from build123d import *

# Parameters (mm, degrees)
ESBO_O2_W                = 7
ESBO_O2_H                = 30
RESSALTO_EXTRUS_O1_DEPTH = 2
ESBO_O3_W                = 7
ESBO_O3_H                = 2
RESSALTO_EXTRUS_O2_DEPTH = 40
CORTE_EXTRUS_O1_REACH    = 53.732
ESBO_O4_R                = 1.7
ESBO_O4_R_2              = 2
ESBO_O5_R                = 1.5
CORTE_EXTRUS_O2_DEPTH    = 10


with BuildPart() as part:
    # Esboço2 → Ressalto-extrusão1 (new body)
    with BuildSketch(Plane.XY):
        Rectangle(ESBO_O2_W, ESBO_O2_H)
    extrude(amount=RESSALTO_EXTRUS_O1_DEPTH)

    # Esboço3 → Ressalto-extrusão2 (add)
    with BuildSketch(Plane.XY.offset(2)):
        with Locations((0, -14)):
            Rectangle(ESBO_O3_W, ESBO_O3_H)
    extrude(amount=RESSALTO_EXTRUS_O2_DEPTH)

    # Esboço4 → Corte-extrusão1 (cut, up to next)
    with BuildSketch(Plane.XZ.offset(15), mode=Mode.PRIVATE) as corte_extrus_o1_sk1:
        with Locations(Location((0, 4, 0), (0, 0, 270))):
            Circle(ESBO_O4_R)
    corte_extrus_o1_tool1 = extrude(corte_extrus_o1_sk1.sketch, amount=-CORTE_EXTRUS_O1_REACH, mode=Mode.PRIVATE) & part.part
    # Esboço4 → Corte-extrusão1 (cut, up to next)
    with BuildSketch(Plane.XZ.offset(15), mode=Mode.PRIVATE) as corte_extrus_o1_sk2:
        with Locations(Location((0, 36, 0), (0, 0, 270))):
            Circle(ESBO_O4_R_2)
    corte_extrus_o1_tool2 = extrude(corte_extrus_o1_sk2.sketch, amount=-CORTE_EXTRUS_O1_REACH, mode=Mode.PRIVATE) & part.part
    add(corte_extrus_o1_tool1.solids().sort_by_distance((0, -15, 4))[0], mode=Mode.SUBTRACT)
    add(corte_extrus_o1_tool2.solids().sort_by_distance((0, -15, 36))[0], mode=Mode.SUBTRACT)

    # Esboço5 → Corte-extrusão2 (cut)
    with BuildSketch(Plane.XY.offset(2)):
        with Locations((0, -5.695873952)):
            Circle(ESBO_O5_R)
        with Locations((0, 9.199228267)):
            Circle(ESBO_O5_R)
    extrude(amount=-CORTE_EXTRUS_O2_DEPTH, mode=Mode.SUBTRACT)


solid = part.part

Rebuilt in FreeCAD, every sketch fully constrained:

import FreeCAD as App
import Part
import Sketcher

V = App.Vector
Q = App.Units.Quantity

doc = App.newDocument("Part")
params = doc.addObject("Spreadsheet::Sheet", "Params")
for row, (alias, value) in enumerate([
    ("sketch1_width", "7 mm"),
    ("sketch1_height", "30 mm"),
    ("pad1_length", "2 mm"),
    ("sketch2_width", "7 mm"),
    ("sketch2_height", "2 mm"),
    ("pad2_length", "40 mm"),
    ("sketch3_diameter", "3.4 mm"),
    ("sketch4_diameter", "4 mm"),
    ("sketch5_diameter", "3 mm"),
    ("pocket3_length", "10 mm"),
], start=1):
    params.set(f"A{row}", alias)
    params.set(f"B{row}", "=" + value)
    params.setAlias(f"B{row}", alias)

body = doc.addObject("PartDesign::Body", "Body")

sketch1 = body.newObject("Sketcher::SketchObject", "Sketch")
sketch1.AttachmentSupport = (doc.getObject("XY_Plane"), [""])
sketch1.MapMode = "FlatFace"
sketch1.addGeometry(Part.LineSegment(V(-3.5, 15, 0), V(-3.5, -15, 0)), False)
sketch1.addGeometry(Part.LineSegment(V(-3.5, -15, 0), V(3.5, -15, 0)), False)
sketch1.addGeometry(Part.LineSegment(V(3.5, -15, 0), V(3.5, 15, 0)), False)
sketch1.addGeometry(Part.LineSegment(V(3.5, 15, 0), V(-3.5, 15, 0)), False)
sketch1.addConstraint(Sketcher.Constraint("Coincident", 0, 2, 1, 1))
sketch1.addConstraint(Sketcher.Constraint("Coincident", 1, 2, 2, 1))
sketch1.addConstraint(Sketcher.Constraint("Coincident", 2, 2, 3, 1))
sketch1.addConstraint(Sketcher.Constraint("Coincident", 3, 2, 0, 1))
sketch1.addConstraint(Sketcher.Constraint("Vertical", 0))
sketch1.addConstraint(Sketcher.Constraint("Horizontal", 1))
sketch1.addConstraint(Sketcher.Constraint("Vertical", 2))
sketch1.addConstraint(Sketcher.Constraint("Horizontal", 3))
sketch1.addConstraint(Sketcher.Constraint("Symmetric", 0, 2, 2, 2, -1, 1))
sketch1.addConstraint(Sketcher.Constraint("DistanceX", 1, 1, 1, 2, Q("7 mm")))
sketch1.addConstraint(Sketcher.Constraint("DistanceY", 0, 2, 0, 1, Q("30 mm")))
sketch1.setExpression("Constraints[9]", "Params.sketch1_width")
sketch1.setExpression("Constraints[10]", "Params.sketch1_height")
pad1 = body.newObject("PartDesign::Pad", "Pad")
pad1.Profile = sketch1
pad1.setExpression("Length", "Params.pad1_length")

sketch2 = body.newObject("Sketcher::SketchObject", "Sketch001")
sketch2.AttachmentSupport = (doc.getObject("XY_Plane"), [""])
sketch2.MapMode = "FlatFace"
sketch2.AttachmentOffset = App.Placement(V(0, 0, 2), App.Rotation())
sketch2.addGeometry(Part.LineSegment(V(-3.5, -13, 0), V(-3.5, -15, 0)), False)
sketch2.addGeometry(Part.LineSegment(V(-3.5, -15, 0), V(3.5, -15, 0)), False)
sketch2.addGeometry(Part.LineSegment(V(3.5, -15, 0), V(3.5, -13, 0)), False)
sketch2.addGeometry(Part.LineSegment(V(3.5, -13, 0), V(-3.5, -13, 0)), False)
sketch2.addConstraint(Sketcher.Constraint("Coincident", 0, 2, 1, 1))
sketch2.addConstraint(Sketcher.Constraint("Coincident", 1, 2, 2, 1))
sketch2.addConstraint(Sketcher.Constraint("Coincident", 2, 2, 3, 1))
sketch2.addConstraint(Sketcher.Constraint("Coincident", 3, 2, 0, 1))
sketch2.addConstraint(Sketcher.Constraint("Vertical", 0))
sketch2.addConstraint(Sketcher.Constraint("Horizontal", 1))
sketch2.addConstraint(Sketcher.Constraint("Vertical", 2))
sketch2.addConstraint(Sketcher.Constraint("Horizontal", 3))
sketch2.addConstraint(Sketcher.Constraint("DistanceX", 1, 1, 1, 2, Q("7 mm")))
sketch2.addConstraint(Sketcher.Constraint("DistanceY", 0, 2, 0, 1, Q("2 mm")))
sketch2.addConstraint(Sketcher.Constraint("DistanceY", 0, 2, -1, 1, Q("15 mm")))
sketch2.addConstraint(Sketcher.Constraint("DistanceX", 0, 2, -1, 1, Q("3.5 mm")))
sketch2.setExpression("Constraints[8]", "Params.sketch2_width")
sketch2.setExpression("Constraints[9]", "Params.sketch2_height")
pad2 = body.newObject("PartDesign::Pad", "Pad001")
pad2.Profile = sketch2
pad2.setExpression("Length", "Params.pad2_length")

sketch3 = body.newObject("Sketcher::SketchObject", "Sketch002")
sketch3.AttachmentSupport = (doc.getObject("XZ_Plane"), [""])
sketch3.MapMode = "FlatFace"
sketch3.AttachmentOffset = App.Placement(V(0, 0, 15), App.Rotation())
sketch3.addGeometry(Part.Circle(V(0, 4, 0), V(0, 0, 1), 1.7), False)
sketch3.addConstraint(Sketcher.Constraint("PointOnObject", 0, 3, -2))
sketch3.addConstraint(Sketcher.Constraint("Diameter", 0, Q("3.4 mm")))
sketch3.addConstraint(Sketcher.Constraint("DistanceY", -1, 1, 0, 3, Q("4 mm")))
sketch3.setExpression("Constraints[1]", "Params.sketch3_diameter")
pocket1 = body.newObject("PartDesign::Pocket", "Pocket")
pocket1.Profile = sketch3
pocket1.Type = "UpToFirst"

sketch4 = body.newObject("Sketcher::SketchObject", "Sketch003")
sketch4.AttachmentSupport = (doc.getObject("XZ_Plane"), [""])
sketch4.MapMode = "FlatFace"
sketch4.AttachmentOffset = App.Placement(V(0, 0, 15), App.Rotation())
sketch4.addGeometry(Part.Circle(V(0, 36, 0), V(0, 0, 1), 2), False)
sketch4.addConstraint(Sketcher.Constraint("PointOnObject", 0, 3, -2))
sketch4.addConstraint(Sketcher.Constraint("Diameter", 0, Q("4 mm")))
sketch4.addConstraint(Sketcher.Constraint("DistanceY", -1, 1, 0, 3, Q("36 mm")))
sketch4.setExpression("Constraints[1]", "Params.sketch4_diameter")
pocket2 = body.newObject("PartDesign::Pocket", "Pocket001")
pocket2.Profile = sketch4
pocket2.Type = "UpToFirst"

sketch5 = body.newObject("Sketcher::SketchObject", "Sketch004")
sketch5.AttachmentSupport = (doc.getObject("XY_Plane"), [""])
sketch5.MapMode = "FlatFace"
sketch5.AttachmentOffset = App.Placement(V(0, 0, 2), App.Rotation())
sketch5.addGeometry(Part.Circle(V(0, -5.695874, 0), V(0, 0, 1), 1.5), False)
sketch5.addGeometry(Part.Circle(V(0, 9.199228, 0), V(0, 0, 1), 1.5), False)
sketch5.addConstraint(Sketcher.Constraint("Equal", 0, 1))
sketch5.addConstraint(Sketcher.Constraint("PointOnObject", 0, 3, -2))
sketch5.addConstraint(Sketcher.Constraint("PointOnObject", 1, 3, -2))
sketch5.addConstraint(Sketcher.Constraint("Diameter", 0, Q("3 mm")))
sketch5.addConstraint(Sketcher.Constraint("DistanceY", -1, 1, 1, 3, Q("9.199228 mm")))
sketch5.addConstraint(Sketcher.Constraint("DistanceY", 0, 3, -1, 1, Q("5.695874 mm")))
sketch5.setExpression("Constraints[3]", "Params.sketch5_diameter")
pocket3 = body.newObject("PartDesign::Pocket", "Pocket002")
pocket3.Profile = sketch5
pocket3.setExpression("Length", "Params.pocket3_length")

doc.recompute()
